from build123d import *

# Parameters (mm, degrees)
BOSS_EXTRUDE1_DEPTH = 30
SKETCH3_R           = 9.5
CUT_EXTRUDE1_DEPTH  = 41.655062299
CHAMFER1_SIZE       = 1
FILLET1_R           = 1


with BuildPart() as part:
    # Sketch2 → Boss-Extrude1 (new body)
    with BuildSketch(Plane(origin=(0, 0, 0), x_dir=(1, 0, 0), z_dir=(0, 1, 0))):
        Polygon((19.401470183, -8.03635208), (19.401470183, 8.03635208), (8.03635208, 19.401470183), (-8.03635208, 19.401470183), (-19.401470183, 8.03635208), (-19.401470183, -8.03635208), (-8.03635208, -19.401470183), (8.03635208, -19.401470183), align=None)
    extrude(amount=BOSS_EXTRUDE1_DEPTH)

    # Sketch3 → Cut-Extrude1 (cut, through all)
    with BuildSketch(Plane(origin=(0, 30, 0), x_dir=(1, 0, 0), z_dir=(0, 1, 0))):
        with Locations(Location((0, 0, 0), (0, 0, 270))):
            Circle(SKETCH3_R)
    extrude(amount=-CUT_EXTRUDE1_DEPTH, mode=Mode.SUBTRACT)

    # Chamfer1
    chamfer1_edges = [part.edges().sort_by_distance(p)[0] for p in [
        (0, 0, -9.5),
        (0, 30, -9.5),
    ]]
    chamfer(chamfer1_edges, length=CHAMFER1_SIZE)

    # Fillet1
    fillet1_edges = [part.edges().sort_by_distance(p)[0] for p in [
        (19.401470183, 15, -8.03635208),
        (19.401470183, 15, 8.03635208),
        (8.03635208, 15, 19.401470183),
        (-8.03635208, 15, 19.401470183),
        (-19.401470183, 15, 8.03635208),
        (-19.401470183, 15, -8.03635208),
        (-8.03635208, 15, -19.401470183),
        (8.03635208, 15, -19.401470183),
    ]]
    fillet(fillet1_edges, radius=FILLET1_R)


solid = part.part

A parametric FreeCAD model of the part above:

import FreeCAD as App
import Part
import Sketcher


def edges_at(feature, points):
    """Names of the edges that pass closest to the given points."""
    edges = feature.Shape.Edges
    near = lambda p: min(range(len(edges)), key=lambda i: edges[i].distToShape(Part.Vertex(*p))[0])
    return sorted({f"Edge{near(p) + 1}" for p in points})

doc = App.newDocument("Part")
params = doc.addObject("Spreadsheet::Sheet", "Params")
for row, (alias, value) in enumerate([
    ("pad1_length", "30 mm"),
    ("sketch2_diameter", "19 mm"),
    ("chamfer_size", "1 mm"),
    ("fillet_radius", "1 mm"),
], start=1):
    params.set(f"A{row}", alias)
    params.set(f"B{row}", "=" + value)
    params.setAlias(f"B{row}", alias)

body = doc.addObject("PartDesign::Body", "Body")

# Sketch on XZ plane
sketch1 = body.newObject("Sketcher::SketchObject", "Sketch")
sketch1.AttachmentSupport = (doc.getObject("XZ_Plane"), [""])
sketch1.MapMode = "FlatFace"
sketch1.addGeometry([
    Part.LineSegment(App.Vector(19, 8, 0), App.Vector(19, -8, 0)),  # 0
    Part.LineSegment(App.Vector(19, -8, 0), App.Vector(8, -19, 0)),  # 1
    Part.LineSegment(App.Vector(8, -19, 0), App.Vector(-8, -19, 0)),  # 2
    Part.LineSegment(App.Vector(-8, -19, 0), App.Vector(-19, -8, 0)),  # 3
    Part.LineSegment(App.Vector(-19, -8, 0), App.Vector(-19, 8, 0)),  # 4
    Part.LineSegment(App.Vector(-19, 8, 0), App.Vector(-8, 19, 0)),  # 5
    Part.LineSegment(App.Vector(-8, 19, 0), App.Vector(8, 19, 0)),  # 6
    Part.LineSegment(App.Vector(8, 19, 0), App.Vector(19, 8, 0)),  # 7
], False)
sketch1.addConstraint([
    Sketcher.Constraint("Coincident", 0, 2, 1, 1),
    Sketcher.Constraint("Coincident", 1, 2, 2, 1),
    Sketcher.Constraint("Coincident", 2, 2, 3, 1),
    Sketcher.Constraint("Coincident", 3, 2, 4, 1),
    Sketcher.Constraint("Coincident", 4, 2, 5, 1),
    Sketcher.Constraint("Coincident", 5, 2, 6, 1),
    Sketcher.Constraint("Coincident", 6, 2, 7, 1),
    Sketcher.Constraint("Coincident", 7, 2, 0, 1),
    Sketcher.Constraint("Vertical", 0),
    Sketcher.Constraint("Horizontal", 2),
    Sketcher.Constraint("Vertical", 4),
    Sketcher.Constraint("Horizontal", 6),
    Sketcher.Constraint("Symmetric", 0, 2, 4, 2, -1, 1),
    Sketcher.Constraint("Symmetric", 1, 2, 5, 2, -1, 1),
    Sketcher.Constraint("Perpendicular", 1, 3),
    Sketcher.Constraint("Perpendicular", 5, 7),
    Sketcher.Constraint("Horizontal", 0, 2, 3, 2),
    Sketcher.Constraint("Horizontal", 4, 2, 7, 2),
    Sketcher.Constraint("Vertical", 2, 2, 5, 2),
    Sketcher.Constraint("Equal", 6, 0),
    Sketcher.Constraint("DistanceX", 2, 2, 2, 1, 16.072704),
    Sketcher.Constraint("DistanceX", -1, 1, 0, 2, 19.40147),
])
pad1 = body.newObject("PartDesign::Pad", "Pad")
pad1.Profile = sketch1
pad1.setExpression("Length", "Params.pad1_length")
pad1.Reversed = True

# Sketch on XZ plane
sketch2 = body.newObject("Sketcher::SketchObject", "Sketch001")
sketch2.AttachmentSupport = (doc.getObject("XZ_Plane"), [""])
sketch2.MapMode = "FlatFace"
sketch2.AttachmentOffset = App.Placement(App.Vector(0, 0, -30), App.Rotation())
sketch2.addGeometry(Part.Circle(App.Vector(0, 0, 0), App.Vector(0, 0, 1), 10), False)
sketch2.addConstraint([
    Sketcher.Constraint("Coincident", 0, 3, -1, 1),
    Sketcher.Constraint("Diameter", 0, 19.0),
])
sketch2.setExpression("Constraints[1]", "Params.sketch2_diameter")
pocket1 = body.newObject("PartDesign::Pocket", "Pocket")
pocket1.Profile = sketch2
pocket1.Type = "ThroughAll"
pocket1.Reversed = True
doc.recompute()

chamfer = body.newObject("PartDesign::Chamfer", "Chamfer")
chamfer.Base = (pocket1, edges_at(pocket1, [(0, 0, -9.5), (0, 30, -9.5)]))
chamfer.setExpression("Size", "Params.chamfer_size")
doc.recompute()

fillet = body.newObject("PartDesign::Fillet", "Fillet")
fillet.Base = (chamfer, edges_at(chamfer, [
    (19.401, 15, -8.036),
    (19.401, 15, 8.036),
    (8.036, 15, 19.401),
    (-8.036, 15, 19.401),
    (-19.401, 15, 8.036),
    (-19.401, 15, -8.036),
    (-8.036, 15, -19.401),
    (8.036, 15, -19.401),
]))
fillet.setExpression("Radius", "Params.fillet_radius")

doc.recompute()
